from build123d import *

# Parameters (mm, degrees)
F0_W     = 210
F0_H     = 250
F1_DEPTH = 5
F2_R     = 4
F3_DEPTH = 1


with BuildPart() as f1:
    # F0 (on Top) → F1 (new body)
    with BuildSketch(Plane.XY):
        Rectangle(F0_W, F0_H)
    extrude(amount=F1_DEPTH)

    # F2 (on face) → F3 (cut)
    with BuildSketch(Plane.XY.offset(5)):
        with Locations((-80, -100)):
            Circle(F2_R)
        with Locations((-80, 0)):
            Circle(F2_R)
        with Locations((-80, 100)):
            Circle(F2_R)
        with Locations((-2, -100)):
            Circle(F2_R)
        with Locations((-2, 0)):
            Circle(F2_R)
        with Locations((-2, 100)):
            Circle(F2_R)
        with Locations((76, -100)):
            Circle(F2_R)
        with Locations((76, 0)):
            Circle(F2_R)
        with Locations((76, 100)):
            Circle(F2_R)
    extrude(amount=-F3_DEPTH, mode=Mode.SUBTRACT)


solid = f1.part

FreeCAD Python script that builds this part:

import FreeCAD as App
import Part
import Sketcher
Q = App.Units.Quantity

doc = App.newDocument("Part")
body = doc.addObject("PartDesign::Body", "Body")

sketch1 = body.newObject("Sketcher::SketchObject", "Sketch")
sketch1.AttachmentSupport = (doc.getObject("XY_Plane"), [""])
sketch1.MapMode = "FlatFace"
sketch1.addGeometry(Part.LineSegment(App.Vector(-105, 125, 0), App.Vector(-105, -125, 0)), False)
sketch1.addGeometry(Part.LineSegment(App.Vector(-105, -125, 0), App.Vector(105, -125, 0)), False)
sketch1.addGeometry(Part.LineSegment(App.Vector(105, -125, 0), App.Vector(105, 125, 0)), False)
sketch1.addGeometry(Part.LineSegment(App.Vector(105, 125, 0), App.Vector(-105, 125, 0)), False)
sketch1.addConstraint(Sketcher.Constraint("Coincident", 0, 2, 1, 1))
sketch1.addConstraint(Sketcher.Constraint("Coincident", 1, 2, 2, 1))
sketch1.addConstraint(Sketcher.Constraint("Coincident", 2, 2, 3, 1))
sketch1.addConstraint(Sketcher.Constraint("Coincident", 3, 2, 0, 1))
sketch1.addConstraint(Sketcher.Constraint("Vertical", 0))
sketch1.addConstraint(Sketcher.Constraint("Horizontal", 1))
sketch1.addConstraint(Sketcher.Constraint("Vertical", 2))
sketch1.addConstraint(Sketcher.Constraint("Horizontal", 3))
sketch1.addConstraint(Sketcher.Constraint("Symmetric", 0, 2, 2, 2, -1, 1))
sketch1.addConstraint(Sketcher.Constraint("DistanceX", 1, 1, 1, 2, Q("210 mm")))
sketch1.addConstraint(Sketcher.Constraint("DistanceY", 0, 2, 0, 1, Q("250 mm")))
pad1 = body.newObject("PartDesign::Pad", "Pad")
pad1.Profile = sketch1
pad1.Length = 5

sketch2 = body.newObject("Sketcher::SketchObject", "Sketch001")
sketch2.AttachmentSupport = (doc.getObject("XY_Plane"), [""])
sketch2.MapMode = "FlatFace"
sketch2.AttachmentOffset = App.Placement(App.Vector(0, 0, 5), App.Rotation())
sketch2.addGeometry(Part.Circle(App.Vector(-80, -100, 0), App.Vector(0, 0, 1), 4), False)
sketch2.addGeometry(Part.Circle(App.Vector(-80, 0, 0), App.Vector(0, 0, 1), 4), False)
sketch2.addGeometry(Part.Circle(App.Vector(-80, 100, 0), App.Vector(0, 0, 1), 4), False)
sketch2.addGeometry(Part.Circle(App.Vector(-2, -100, 0), App.Vector(0, 0, 1), 4), False)
sketch2.addGeometry(Part.Circle(App.Vector(-2, 0, 0), App.Vector(0, 0, 1), 4), False)
sketch2.addGeometry(Part.Circle(App.Vector(-2, 100, 0), App.Vector(0, 0, 1), 4), False)
sketch2.addGeometry(Part.Circle(App.Vector(76, -100, 0), App.Vector(0, 0, 1), 4), False)
sketch2.addGeometry(Part.Circle(App.Vector(76, 0, 0), App.Vector(0, 0, 1), 4), False)
sketch2.addGeometry(Part.Circle(App.Vector(76, 100, 0), App.Vector(0, 0, 1), 4), False)
sketch2.addConstraint(Sketcher.Constraint("Equal", 0, 1))
sketch2.addConstraint(Sketcher.Constraint("Equal", 1, 2))
sketch2.addConstraint(Sketcher.Constraint("Equal", 2, 3))
sketch2.addConstraint(Sketcher.Constraint("Equal", 3, 4))
sketch2.addConstraint(Sketcher.Constraint("Equal", 4, 5))
sketch2.addConstraint(Sketcher.Constraint("Equal", 5, 6))
sketch2.addConstraint(Sketcher.Constraint("Equal", 6, 7))
sketch2.addConstraint(Sketcher.Constraint("Equal", 7, 8))
sketch2.addConstraint(Sketcher.Constraint("Symmetric", 0, 3, 2, 3, -1))
sketch2.addConstraint(Sketcher.Constraint("Symmetric", 3, 3, 5, 3, -1))
sketch2.addConstraint(Sketcher.Constraint("Symmetric", 6, 3, 8, 3, -1))
sketch2.addConstraint(Sketcher.Constraint("PointOnObject", 1, 3, -1))
sketch2.addConstraint(Sketcher.Constraint("PointOnObject", 4, 3, -1))
sketch2.addConstraint(Sketcher.Constraint("PointOnObject", 7, 3, -1))
sketch2.addConstraint(Sketcher.Constraint("Horizontal", 0, 3, 3, 3))
sketch2.addConstraint(Sketcher.Constraint("Horizontal", 3, 3, 6, 3))
sketch2.addConstraint(Sketcher.Constraint("Vertical", 0, 3, 1, 3))
sketch2.addConstraint(Sketcher.Constraint("Vertical", 3, 3, 4, 3))
sketch2.addConstraint(Sketcher.Constraint("Vertical", 6, 3, 7, 3))
sketch2.addConstraint(Sketcher.Constraint("Diameter", 0, Q("8 mm")))
sketch2.addConstraint(Sketcher.Constraint("DistanceX", 0, 3, -1, 1, Q("80 mm")))
sketch2.addConstraint(Sketcher.Constraint("DistanceY", 0, 3, -1, 1, Q("100 mm")))
sketch2.addConstraint(Sketcher.Constraint("DistanceX", 3, 3, -1, 1, Q("2 mm")))
sketch2.addConstraint(Sketcher.Constraint("DistanceX", -1, 1, 6, 3, Q("76 mm")))
pocket1 = body.newObject("PartDesign::Pocket", "Pocket")
pocket1.Profile = sketch2
pocket1.Length = 1

doc.recompute()
